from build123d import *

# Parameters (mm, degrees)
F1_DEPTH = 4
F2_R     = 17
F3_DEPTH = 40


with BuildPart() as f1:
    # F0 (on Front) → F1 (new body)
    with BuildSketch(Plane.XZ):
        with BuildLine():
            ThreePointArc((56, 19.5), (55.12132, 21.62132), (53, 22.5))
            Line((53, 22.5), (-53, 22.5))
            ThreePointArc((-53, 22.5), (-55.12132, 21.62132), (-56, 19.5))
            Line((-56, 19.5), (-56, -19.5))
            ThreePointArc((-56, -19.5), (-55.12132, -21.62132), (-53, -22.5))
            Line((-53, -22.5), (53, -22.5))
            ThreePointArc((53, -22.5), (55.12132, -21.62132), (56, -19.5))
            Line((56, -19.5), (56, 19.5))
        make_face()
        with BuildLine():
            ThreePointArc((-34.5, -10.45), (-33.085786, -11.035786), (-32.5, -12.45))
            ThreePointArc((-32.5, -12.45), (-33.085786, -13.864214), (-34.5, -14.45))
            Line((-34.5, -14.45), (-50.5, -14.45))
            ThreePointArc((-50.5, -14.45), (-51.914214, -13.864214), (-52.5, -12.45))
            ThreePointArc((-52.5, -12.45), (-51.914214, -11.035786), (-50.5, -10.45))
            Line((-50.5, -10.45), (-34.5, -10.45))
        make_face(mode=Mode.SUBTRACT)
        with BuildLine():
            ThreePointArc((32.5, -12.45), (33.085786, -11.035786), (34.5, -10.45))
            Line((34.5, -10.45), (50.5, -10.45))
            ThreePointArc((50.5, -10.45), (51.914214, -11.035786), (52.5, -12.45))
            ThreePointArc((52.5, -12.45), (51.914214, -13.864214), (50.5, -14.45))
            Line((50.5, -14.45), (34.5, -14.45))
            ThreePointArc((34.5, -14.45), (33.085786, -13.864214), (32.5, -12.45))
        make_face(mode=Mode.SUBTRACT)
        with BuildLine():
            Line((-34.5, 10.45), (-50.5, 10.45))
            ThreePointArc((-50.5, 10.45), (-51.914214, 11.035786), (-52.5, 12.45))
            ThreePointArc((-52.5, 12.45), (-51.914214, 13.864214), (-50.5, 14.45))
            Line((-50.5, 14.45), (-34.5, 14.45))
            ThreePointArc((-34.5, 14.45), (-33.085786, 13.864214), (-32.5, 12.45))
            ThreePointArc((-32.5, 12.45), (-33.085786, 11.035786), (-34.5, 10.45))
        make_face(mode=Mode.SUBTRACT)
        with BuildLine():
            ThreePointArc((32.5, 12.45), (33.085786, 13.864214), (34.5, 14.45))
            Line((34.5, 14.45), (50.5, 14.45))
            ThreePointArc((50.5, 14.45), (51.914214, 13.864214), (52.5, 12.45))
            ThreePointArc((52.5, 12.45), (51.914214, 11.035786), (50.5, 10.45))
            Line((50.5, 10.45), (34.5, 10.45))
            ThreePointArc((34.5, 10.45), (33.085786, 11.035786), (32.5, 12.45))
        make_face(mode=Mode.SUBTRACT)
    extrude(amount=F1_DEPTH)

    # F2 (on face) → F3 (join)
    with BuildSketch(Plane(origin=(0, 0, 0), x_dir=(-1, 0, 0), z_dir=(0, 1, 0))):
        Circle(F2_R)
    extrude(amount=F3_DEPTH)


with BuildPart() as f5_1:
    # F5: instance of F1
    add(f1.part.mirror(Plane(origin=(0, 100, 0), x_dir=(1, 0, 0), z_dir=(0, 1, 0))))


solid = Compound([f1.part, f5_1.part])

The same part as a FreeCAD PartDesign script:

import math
import FreeCAD as App
import Part
import Sketcher

V = App.Vector
Q = App.Units.Quantity

doc = App.newDocument("Part")
body = doc.addObject("PartDesign::Body", "Body")

sketch1 = doc.addObject("Sketcher::SketchObject", "Sketch")
body.addObject(sketch1)
sketch1.AttachmentSupport = (doc.XZ_Plane, [""])
sketch1.MapMode = "FlatFace"
sketch1.addGeometry([
    Part.ArcOfCircle(Part.Circle(V(53, 19.5, 0), V(0, 0, 1), 3), math.radians(0), math.radians(90)),
    Part.LineSegment(V(53, 22.5, 0), V(-53, 22.5, 0)),
    Part.ArcOfCircle(Part.Circle(V(-53, 19.5, 0), V(0, 0, 1), 3), math.radians(90), math.radians(180)),
    Part.LineSegment(V(-56, 19.5, 0), V(-56, -19.5, 0)),
    Part.ArcOfCircle(Part.Circle(V(-53, -19.5, 0), V(0, 0, 1), 3), math.radians(-180), math.radians(-90)),
    Part.LineSegment(V(-53, -22.5, 0), V(53, -22.5, 0)),
    Part.ArcOfCircle(Part.Circle(V(53, -19.5, 0), V(0, 0, 1), 3), math.radians(-90), math.radians(0)),
    Part.LineSegment(V(56, -19.5, 0), V(56, 19.5, 0)),
    Part.LineSegment(V(-50.5, -10.4, 0), V(-34.5, -10.4, 0)),
    Part.ArcOfCircle(Part.Circle(V(-34.5, -12.4, 0), V(0, 0, 1), 2), math.radians(0), math.radians(90)),
    Part.ArcOfCircle(Part.Circle(V(-34.5, -12.5, 0), V(0, 0, 1), 2), math.radians(-90), math.radians(0)),
    Part.LineSegment(V(-34.5, -14.4, 0), V(-50.5, -14.4, 0)),
    Part.ArcOfCircle(Part.Circle(V(-50.5, -12.5, 0), V(0, 0, 1), 2), math.radians(180), math.radians(270)),
    Part.ArcOfCircle(Part.Circle(V(-50.5, -12.4, 0), V(0, 0, 1), 2), math.radians(90), math.radians(180)),
    Part.ArcOfCircle(Part.Circle(V(34.5, -12.5, 0), V(0, 0, 1), 2), math.radians(180), math.radians(270)),
    Part.ArcOfCircle(Part.Circle(V(34.5, -12.4, 0), V(0, 0, 1), 2), math.radians(90), math.radians(180)),
    Part.LineSegment(V(34.5, -10.4, 0), V(50.5, -10.4, 0)),
    Part.ArcOfCircle(Part.Circle(V(50.5, -12.4, 0), V(0, 0, 1), 2), math.radians(0), math.radians(90)),
    Part.ArcOfCircle(Part.Circle(V(50.5, -12.5, 0), V(0, 0, 1), 2), math.radians(-90), math.radians(0)),
    Part.LineSegment(V(50.5, -14.4, 0), V(34.5, -14.4, 0)),
    Part.ArcOfCircle(Part.Circle(V(-34.5, 12.4, 0), V(0, 0, 1), 2), math.radians(-90), math.radians(0)),
    Part.LineSegment(V(-34.5, 10.4, 0), V(-50.5, 10.4, 0)),
    Part.ArcOfCircle(Part.Circle(V(-50.5, 12.4, 0), V(0, 0, 1), 2), math.radians(180), math.radians(270)),
    Part.ArcOfCircle(Part.Circle(V(-50.5, 12.5, 0), V(0, 0, 1), 2), math.radians(90), math.radians(180)),
    Part.LineSegment(V(-50.5, 14.4, 0), V(-34.5, 14.4, 0)),
    Part.ArcOfCircle(Part.Circle(V(-34.5, 12.5, 0), V(0, 0, 1), 2), math.radians(0), math.radians(90)),
    Part.ArcOfCircle(Part.Circle(V(34.5, 12.4, 0), V(0, 0, 1), 2), math.radians(180), math.radians(270)),
    Part.ArcOfCircle(Part.Circle(V(34.5, 12.5, 0), V(0, 0, 1), 2), math.radians(90), math.radians(180)),
    Part.LineSegment(V(34.5, 14.4, 0), V(50.5, 14.4, 0)),
    Part.ArcOfCircle(Part.Circle(V(50.5, 12.5, 0), V(0, 0, 1), 2), math.radians(0), math.radians(90)),
    Part.ArcOfCircle(Part.Circle(V(50.5, 12.4, 0), V(0, 0, 1), 2), math.radians(-90), math.radians(0)),
    Part.LineSegment(V(50.5, 10.4, 0), V(34.5, 10.4, 0)),
], False)
sketch1.addConstraint([
    Sketcher.Constraint("Tangent", 0, 2, 1, 1),
    Sketcher.Constraint("Tangent", 1, 2, 2, 1),
    Sketcher.Constraint("Tangent", 2, 2, 3, 1),
    Sketcher.Constraint("Tangent", 3, 2, 4, 1),
    Sketcher.Constraint("Tangent", 4, 2, 5, 1),
    Sketcher.Constraint("Tangent", 5, 2, 6, 1),
    Sketcher.Constraint("Tangent", 6, 2, 7, 1),
    Sketcher.Constraint("Tangent", 7, 2, 0, 1),
    Sketcher.Constraint("Tangent", 8, 2, 9, 2),
    Sketcher.Constraint("Tangent", 9, 1, 10, 2),
    Sketcher.Constraint("Tangent", 10, 1, 11, 1),
    Sketcher.Constraint("Tangent", 11, 2, 12, 2),
    Sketcher.Constraint("Tangent", 12, 1, 13, 2),
    Sketcher.Constraint("Tangent", 13, 1, 8, 1),
    Sketcher.Constraint("Tangent", 14, 1, 15, 2),
    Sketcher.Constraint("Tangent", 15, 1, 16, 1),
    Sketcher.Constraint("Tangent", 16, 2, 17, 2),
    Sketcher.Constraint("Tangent", 17, 1, 18, 2),
    Sketcher.Constraint("Tangent", 18, 1, 19, 1),
    Sketcher.Constraint("Tangent", 19, 2, 14, 2),
    Sketcher.Constraint("Tangent", 20, 1, 21, 1),
    Sketcher.Constraint("Tangent", 21, 2, 22, 2),
    Sketcher.Constraint("Tangent", 22, 1, 23, 2),
    Sketcher.Constraint("Tangent", 23, 1, 24, 1),
    Sketcher.Constraint("Tangent", 24, 2, 25, 2),
    Sketcher.Constraint("Tangent", 25, 1, 20, 2),
    Sketcher.Constraint("Tangent", 26, 1, 27, 2),
    Sketcher.Constraint("Tangent", 27, 1, 28, 1),
    Sketcher.Constraint("Tangent", 28, 2, 29, 2),
    Sketcher.Constraint("Tangent", 29, 1, 30, 2),
    Sketcher.Constraint("Tangent", 30, 1, 31, 1),
    Sketcher.Constraint("Tangent", 31, 2, 26, 2),
    Sketcher.Constraint("Horizontal", 1),
    Sketcher.Constraint("Vertical", 3),
    Sketcher.Constraint("Horizontal", 5),
    Sketcher.Constraint("Vertical", 7),
    Sketcher.Constraint("Horizontal", 8),
    Sketcher.Constraint("Horizontal", 11),
    Sketcher.Constraint("Horizontal", 16),
    Sketcher.Constraint("Horizontal", 19),
    Sketcher.Constraint("Horizontal", 21),
    Sketcher.Constraint("Horizontal", 24),
    Sketcher.Constraint("Horizontal", 28),
    Sketcher.Constraint("Horizontal", 31),
    Sketcher.Constraint("Equal", 0, 2),
    Sketcher.Constraint("Equal", 2, 4),
    Sketcher.Constraint("Equal", 4, 6),
    Sketcher.Constraint("Equal", 9, 10),
    Sketcher.Constraint("Equal", 10, 12),
    Sketcher.Constraint("Equal", 13, 14),
    Sketcher.Constraint("Equal", 14, 15),
    Sketcher.Constraint("Equal", 15, 17),
    Sketcher.Constraint("Equal", 18, 20),
    Sketcher.Constraint("Equal", 20, 22),
    Sketcher.Constraint("Equal", 22, 23),
    Sketcher.Constraint("Equal", 25, 26),
    Sketcher.Constraint("Equal", 26, 27),
    Sketcher.Constraint("Equal", 27, 29),
    Sketcher.Constraint("Symmetric", 0, 3, 4, 3, -1, 1),
    Sketcher.Constraint("Symmetric", 14, 3, 20, 3, -1, 1),
    Sketcher.Constraint("Symmetric", 9, 3, 26, 3, -1, 1),
    Sketcher.Constraint("Symmetric", 17, 1, 22, 1, -1, 1),
    Sketcher.Constraint("Symmetric", 12, 1, 29, 1, -1, 1),
    Sketcher.Constraint("Symmetric", 9, 3, 14, 3, -2),
    Sketcher.Constraint("Symmetric", 12, 1, 17, 1, -2),
    Sketcher.Constraint("Horizontal", 18, 3, 9, 1),
    Sketcher.Constraint("Horizontal", 9, 1, 12, 1),
    Sketcher.Constraint("Horizontal", 12, 1, 14, 1),
    Sketcher.Constraint("Horizontal", 22, 1, 25, 1),
    Sketcher.Constraint("Horizontal", 25, 1, 26, 1),
    Sketcher.Constraint("Radius", 0, Q("3.000001 mm")),
    Sketcher.Constraint("Radius", 9, Q("1.999999 mm")),
    Sketcher.Constraint("DistanceX", 1, 2, 1, 1, Q("106 mm")),
    Sketcher.Constraint("DistanceX", 8, 1, 8, 2, Q("16 mm")),
    Sketcher.Constraint("DistanceY", 3, 2, 3, 1, Q("39 mm")),
    Sketcher.Constraint("DistanceX", 12, 3, 14, 3, Q("85 mm")),
    Sketcher.Constraint("DistanceY", 10, 3, 20, 3, Q("24.9 mm")),
])
pad1 = doc.addObject("PartDesign::Pad", "Pad")
body.addObject(pad1)
pad1.Profile = sketch1
pad1.Length = 4

sketch2 = doc.addObject("Sketcher::SketchObject", "Sketch001")
body.addObject(sketch2)
sketch2.AttachmentSupport = (doc.XZ_Plane, [""])
sketch2.MapMode = "FlatFace"
sketch2.addGeometry(Part.Circle(V(0, 0, 0), V(0, 0, 1), 17), False)
sketch2.addConstraint([
    Sketcher.Constraint("Coincident", 0, 3, -1, 1),
    Sketcher.Constraint("Diameter", 0, Q("34 mm")),
])
pad2 = doc.addObject("PartDesign::Pad", "Pad001")
body.addObject(pad2)
pad2.Profile = sketch2
pad2.Length = 40
pad2.Reversed = True
body2 = doc.addObject("PartDesign::Body", "Body001")
doc.recompute()

mirroring = doc.addObject("Part::Mirroring", "Mirroring")
mirroring.Source = body
mirroring.Base = V(0, 100, 0)
mirroring.Normal = V(0, 1, 0)
body2.BaseFeature = mirroring
doc.recompute()
mirroring.Visibility = False

doc.recompute()
